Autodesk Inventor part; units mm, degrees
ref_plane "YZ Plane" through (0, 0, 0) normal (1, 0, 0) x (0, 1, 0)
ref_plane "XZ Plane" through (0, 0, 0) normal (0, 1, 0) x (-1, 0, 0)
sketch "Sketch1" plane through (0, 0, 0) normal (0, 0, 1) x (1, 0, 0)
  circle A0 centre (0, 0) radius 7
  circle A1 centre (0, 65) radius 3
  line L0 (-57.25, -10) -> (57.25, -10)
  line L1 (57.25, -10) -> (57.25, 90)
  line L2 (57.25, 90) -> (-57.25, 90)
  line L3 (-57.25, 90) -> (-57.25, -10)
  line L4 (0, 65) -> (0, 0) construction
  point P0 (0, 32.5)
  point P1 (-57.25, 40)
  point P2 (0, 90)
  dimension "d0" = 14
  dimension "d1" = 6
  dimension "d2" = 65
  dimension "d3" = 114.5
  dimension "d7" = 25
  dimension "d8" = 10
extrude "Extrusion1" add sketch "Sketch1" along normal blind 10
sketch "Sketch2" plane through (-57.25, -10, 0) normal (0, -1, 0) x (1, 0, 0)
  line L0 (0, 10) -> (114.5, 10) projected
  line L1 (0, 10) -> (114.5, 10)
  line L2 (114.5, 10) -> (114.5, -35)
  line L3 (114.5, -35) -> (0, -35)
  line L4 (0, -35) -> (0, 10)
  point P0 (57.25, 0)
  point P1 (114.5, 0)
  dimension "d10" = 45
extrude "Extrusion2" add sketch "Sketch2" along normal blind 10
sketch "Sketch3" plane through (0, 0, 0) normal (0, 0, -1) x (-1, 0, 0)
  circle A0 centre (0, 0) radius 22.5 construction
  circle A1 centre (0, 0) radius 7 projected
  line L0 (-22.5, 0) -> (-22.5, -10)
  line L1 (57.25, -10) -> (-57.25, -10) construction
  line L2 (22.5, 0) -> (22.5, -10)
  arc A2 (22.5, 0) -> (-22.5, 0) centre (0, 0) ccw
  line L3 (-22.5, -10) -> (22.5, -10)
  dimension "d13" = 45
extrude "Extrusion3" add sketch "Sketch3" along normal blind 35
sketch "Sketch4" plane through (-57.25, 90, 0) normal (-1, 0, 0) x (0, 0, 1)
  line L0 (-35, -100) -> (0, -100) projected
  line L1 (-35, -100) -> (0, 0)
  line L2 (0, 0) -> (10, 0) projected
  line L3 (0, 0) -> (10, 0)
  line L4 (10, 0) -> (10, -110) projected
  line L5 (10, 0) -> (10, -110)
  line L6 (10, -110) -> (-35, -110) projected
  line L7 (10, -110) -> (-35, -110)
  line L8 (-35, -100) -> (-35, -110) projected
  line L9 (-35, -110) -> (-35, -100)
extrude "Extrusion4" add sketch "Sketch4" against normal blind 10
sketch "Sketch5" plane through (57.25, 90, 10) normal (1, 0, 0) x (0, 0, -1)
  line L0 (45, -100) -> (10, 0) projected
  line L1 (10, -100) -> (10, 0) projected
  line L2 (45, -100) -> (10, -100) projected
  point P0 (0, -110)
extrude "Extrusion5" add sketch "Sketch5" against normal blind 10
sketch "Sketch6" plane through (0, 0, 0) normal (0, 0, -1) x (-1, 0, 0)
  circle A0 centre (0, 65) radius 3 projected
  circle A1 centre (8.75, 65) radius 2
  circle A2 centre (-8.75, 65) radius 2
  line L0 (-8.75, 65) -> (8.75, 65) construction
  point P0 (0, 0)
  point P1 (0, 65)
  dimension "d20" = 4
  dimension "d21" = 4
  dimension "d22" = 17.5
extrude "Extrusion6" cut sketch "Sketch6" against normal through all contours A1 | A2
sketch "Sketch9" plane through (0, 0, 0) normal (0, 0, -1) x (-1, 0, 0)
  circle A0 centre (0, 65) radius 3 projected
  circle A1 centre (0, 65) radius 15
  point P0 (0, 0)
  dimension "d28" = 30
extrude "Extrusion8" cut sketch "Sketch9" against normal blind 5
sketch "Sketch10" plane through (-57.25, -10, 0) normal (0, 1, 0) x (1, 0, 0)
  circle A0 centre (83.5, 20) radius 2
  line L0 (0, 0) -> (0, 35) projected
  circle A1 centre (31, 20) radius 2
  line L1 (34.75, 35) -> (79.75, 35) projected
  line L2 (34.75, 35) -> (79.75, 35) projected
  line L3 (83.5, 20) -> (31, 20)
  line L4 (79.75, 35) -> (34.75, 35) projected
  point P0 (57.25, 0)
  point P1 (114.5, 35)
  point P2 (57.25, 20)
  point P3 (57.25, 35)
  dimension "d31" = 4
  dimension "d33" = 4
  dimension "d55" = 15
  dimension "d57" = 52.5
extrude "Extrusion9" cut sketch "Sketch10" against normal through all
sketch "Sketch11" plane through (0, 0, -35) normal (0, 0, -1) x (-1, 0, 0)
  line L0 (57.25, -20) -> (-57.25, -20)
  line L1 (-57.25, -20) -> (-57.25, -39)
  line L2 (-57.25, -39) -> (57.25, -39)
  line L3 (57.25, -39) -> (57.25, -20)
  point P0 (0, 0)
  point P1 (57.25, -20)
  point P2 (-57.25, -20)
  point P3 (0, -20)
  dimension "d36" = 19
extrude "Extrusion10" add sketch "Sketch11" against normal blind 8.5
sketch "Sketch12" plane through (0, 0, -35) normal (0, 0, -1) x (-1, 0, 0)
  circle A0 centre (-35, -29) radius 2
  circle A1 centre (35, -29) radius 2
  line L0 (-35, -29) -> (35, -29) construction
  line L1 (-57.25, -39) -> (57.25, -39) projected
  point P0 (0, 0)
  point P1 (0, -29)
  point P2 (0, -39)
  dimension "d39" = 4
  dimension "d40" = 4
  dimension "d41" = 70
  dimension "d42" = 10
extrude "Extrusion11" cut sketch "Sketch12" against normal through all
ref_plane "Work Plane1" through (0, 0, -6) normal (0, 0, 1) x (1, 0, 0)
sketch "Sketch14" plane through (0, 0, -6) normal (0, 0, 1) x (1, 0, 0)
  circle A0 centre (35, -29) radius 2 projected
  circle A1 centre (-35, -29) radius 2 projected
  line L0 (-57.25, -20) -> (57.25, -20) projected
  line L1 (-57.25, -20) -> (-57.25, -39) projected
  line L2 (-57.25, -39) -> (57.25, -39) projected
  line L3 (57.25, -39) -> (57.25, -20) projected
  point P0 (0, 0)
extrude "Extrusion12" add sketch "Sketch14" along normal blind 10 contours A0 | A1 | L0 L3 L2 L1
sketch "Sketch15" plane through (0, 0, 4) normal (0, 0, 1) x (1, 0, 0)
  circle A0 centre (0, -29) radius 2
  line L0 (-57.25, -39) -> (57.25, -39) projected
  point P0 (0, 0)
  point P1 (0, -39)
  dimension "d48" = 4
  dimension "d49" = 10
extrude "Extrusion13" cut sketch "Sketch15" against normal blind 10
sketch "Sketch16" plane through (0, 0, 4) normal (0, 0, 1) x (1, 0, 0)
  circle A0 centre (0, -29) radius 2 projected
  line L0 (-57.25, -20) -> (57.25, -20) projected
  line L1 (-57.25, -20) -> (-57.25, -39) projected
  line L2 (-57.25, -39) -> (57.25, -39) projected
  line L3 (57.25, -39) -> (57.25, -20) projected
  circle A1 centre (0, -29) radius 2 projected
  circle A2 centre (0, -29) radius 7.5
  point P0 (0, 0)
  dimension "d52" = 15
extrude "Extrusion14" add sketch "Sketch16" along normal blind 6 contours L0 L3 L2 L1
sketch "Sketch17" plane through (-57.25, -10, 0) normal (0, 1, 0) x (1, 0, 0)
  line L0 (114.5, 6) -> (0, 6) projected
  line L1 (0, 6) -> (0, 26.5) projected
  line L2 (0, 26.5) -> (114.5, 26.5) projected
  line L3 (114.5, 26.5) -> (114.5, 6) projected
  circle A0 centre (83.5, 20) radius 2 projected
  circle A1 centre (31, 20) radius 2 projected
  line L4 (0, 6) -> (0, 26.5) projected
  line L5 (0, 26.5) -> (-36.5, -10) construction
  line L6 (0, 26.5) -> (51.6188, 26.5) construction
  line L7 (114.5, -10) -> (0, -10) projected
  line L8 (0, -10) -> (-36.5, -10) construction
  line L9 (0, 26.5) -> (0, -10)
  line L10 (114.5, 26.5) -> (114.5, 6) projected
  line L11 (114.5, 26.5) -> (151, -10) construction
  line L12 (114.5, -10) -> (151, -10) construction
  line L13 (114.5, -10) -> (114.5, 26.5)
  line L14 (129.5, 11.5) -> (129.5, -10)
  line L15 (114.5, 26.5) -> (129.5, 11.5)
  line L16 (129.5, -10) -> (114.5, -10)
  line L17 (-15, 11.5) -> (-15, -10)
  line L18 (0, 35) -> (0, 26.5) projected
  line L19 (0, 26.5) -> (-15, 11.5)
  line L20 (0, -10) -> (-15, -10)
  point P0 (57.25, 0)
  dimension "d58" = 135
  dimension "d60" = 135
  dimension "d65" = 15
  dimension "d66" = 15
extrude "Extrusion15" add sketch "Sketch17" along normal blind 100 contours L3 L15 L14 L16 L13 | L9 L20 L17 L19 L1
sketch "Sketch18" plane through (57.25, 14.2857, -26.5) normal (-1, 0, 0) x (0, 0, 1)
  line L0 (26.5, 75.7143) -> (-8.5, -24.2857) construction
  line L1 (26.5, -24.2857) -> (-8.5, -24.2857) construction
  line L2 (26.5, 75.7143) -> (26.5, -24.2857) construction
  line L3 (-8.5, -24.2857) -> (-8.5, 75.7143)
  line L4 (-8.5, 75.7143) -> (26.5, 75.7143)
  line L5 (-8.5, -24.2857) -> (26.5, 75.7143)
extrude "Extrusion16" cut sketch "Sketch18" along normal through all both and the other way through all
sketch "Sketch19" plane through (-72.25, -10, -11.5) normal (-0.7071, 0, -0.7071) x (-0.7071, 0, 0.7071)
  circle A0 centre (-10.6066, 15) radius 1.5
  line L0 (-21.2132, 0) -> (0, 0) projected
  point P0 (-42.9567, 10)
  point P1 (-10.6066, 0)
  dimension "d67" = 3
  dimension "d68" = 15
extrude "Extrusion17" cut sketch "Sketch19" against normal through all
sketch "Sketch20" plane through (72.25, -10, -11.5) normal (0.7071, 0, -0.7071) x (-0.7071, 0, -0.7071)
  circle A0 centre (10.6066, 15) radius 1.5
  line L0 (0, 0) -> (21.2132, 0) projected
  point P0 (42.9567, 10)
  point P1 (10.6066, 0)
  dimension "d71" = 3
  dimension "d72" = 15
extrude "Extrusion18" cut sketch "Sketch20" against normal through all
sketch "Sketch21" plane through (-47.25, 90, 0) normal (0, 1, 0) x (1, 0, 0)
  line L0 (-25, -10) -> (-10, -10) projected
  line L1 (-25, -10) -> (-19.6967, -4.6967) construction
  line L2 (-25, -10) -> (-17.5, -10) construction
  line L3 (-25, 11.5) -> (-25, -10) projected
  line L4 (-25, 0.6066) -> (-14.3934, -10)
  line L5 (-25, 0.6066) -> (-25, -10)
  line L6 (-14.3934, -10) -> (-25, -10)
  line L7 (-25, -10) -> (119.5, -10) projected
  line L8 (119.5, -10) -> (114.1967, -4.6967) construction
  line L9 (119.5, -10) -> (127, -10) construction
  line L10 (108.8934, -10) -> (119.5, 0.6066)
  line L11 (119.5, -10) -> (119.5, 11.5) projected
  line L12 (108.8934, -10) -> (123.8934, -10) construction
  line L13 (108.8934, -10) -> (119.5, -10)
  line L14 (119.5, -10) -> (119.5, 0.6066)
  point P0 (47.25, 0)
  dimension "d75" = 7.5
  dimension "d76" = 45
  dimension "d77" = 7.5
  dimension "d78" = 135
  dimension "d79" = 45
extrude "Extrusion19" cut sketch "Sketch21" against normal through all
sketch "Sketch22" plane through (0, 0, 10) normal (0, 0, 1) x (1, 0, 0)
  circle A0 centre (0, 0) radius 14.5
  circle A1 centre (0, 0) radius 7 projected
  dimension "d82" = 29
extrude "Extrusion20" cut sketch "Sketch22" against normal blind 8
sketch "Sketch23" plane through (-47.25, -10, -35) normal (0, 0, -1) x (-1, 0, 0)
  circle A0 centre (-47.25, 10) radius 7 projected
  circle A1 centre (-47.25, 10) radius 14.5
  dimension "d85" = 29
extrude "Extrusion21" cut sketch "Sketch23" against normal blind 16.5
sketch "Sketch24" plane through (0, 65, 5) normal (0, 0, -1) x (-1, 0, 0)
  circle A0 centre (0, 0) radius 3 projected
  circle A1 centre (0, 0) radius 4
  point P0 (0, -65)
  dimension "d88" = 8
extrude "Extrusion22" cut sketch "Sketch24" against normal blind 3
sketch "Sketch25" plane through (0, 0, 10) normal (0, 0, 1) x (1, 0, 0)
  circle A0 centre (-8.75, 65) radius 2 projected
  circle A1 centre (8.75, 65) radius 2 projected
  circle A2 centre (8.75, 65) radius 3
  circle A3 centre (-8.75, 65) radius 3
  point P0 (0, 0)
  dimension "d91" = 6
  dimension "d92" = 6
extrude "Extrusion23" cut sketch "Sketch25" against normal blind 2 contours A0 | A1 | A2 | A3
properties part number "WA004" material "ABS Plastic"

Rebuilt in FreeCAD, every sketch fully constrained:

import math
import FreeCAD as App
import Part
import Sketcher
Q = App.Units.Quantity


def add_polygon(sketch, points):
    """Adds a closed chain of lines whose ends are joined by coincident constraints."""
    first, n = sketch.GeometryCount, len(points)
    for a, b in zip(points, points[1:] + points[:1]):
        sketch.addGeometry(Part.LineSegment(App.Vector(*a, 0), App.Vector(*b, 0)), False)
    for i in range(n):
        sketch.addConstraint(Sketcher.Constraint("Coincident", first + i, 2, first + (i + 1) % n, 1))

doc = App.newDocument("Part")
body = doc.addObject("PartDesign::Body", "Body")

sketch1 = doc.addObject("Sketcher::SketchObject", "Sketch")
body.addObject(sketch1)
sketch1.AttachmentSupport = (doc.XY_Plane, [""])
sketch1.MapMode = "FlatFace"
add_polygon(sketch1, [(-57.25, 90), (-57.25, -10), (57.25, -10), (57.25, 90)])
sketch1.addGeometry(Part.Circle(App.Vector(0, 0, 0), App.Vector(0, 0, 1), 7), False)
sketch1.addGeometry(Part.Circle(App.Vector(0, 65, 0), App.Vector(0, 0, 1), 3), False)
sketch1.addConstraint([
    Sketcher.Constraint("Vertical", 0),
    Sketcher.Constraint("Horizontal", 1),
    Sketcher.Constraint("Vertical", 2),
    Sketcher.Constraint("Horizontal", 3),
    Sketcher.Constraint("Coincident", 4, 3, -1, 1),
    Sketcher.Constraint("PointOnObject", 5, 3, -2),
    Sketcher.Constraint("Diameter", 4, Q("14 mm")),
    Sketcher.Constraint("Diameter", 5, Q("6 mm")),
    Sketcher.Constraint("DistanceX", 1, 1, 1, 2, Q("114.5 mm")),
    Sketcher.Constraint("DistanceY", -1, 1, 5, 3, Q("65 mm")),
    Sketcher.Constraint("DistanceY", 0, 2, -1, 1, Q("10 mm")),
    Sketcher.Constraint("DistanceY", 5, 3, 2, 2, Q("25 mm")),
    Sketcher.Constraint("DistanceX", 0, 2, -1, 1, Q("57.25 mm")),
])
pad1 = doc.addObject("PartDesign::Pad", "Pad")
body.addObject(pad1)
pad1.Profile = sketch1
pad1.Length = 10

sketch2 = doc.addObject("Sketcher::SketchObject", "Sketch001")
body.addObject(sketch2)
sketch2.AttachmentSupport = (doc.XZ_Plane, [""])
sketch2.MapMode = "FlatFace"
sketch2.AttachmentOffset = App.Placement(App.Vector(0, 0, 10), App.Rotation())
add_polygon(sketch2, [(57.25, 10), (-57.25, 10), (-57.25, -35), (57.25, -35)])
sketch2.addConstraint([
    Sketcher.Constraint("Horizontal", 0),
    Sketcher.Constraint("Vertical", 1),
    Sketcher.Constraint("Horizontal", 2),
    Sketcher.Constraint("Vertical", 3),
    Sketcher.Constraint("DistanceY", 1, 2, 1, 1, Q("45 mm")),
    Sketcher.Constraint("DistanceX", 0, 2, 0, 1, Q("114.5 mm")),
    Sketcher.Constraint("DistanceY", -1, 1, 0, 2, Q("10 mm")),
    Sketcher.Constraint("DistanceX", 0, 2, -1, 1, Q("57.25 mm")),
])
pad2 = doc.addObject("PartDesign::Pad", "Pad001")
body.addObject(pad2)
pad2.Profile = sketch2
pad2.Length = 10

sketch3 = doc.addObject("Sketcher::SketchObject", "Sketch002")
body.addObject(sketch3)
sketch3.AttachmentSupport = (doc.XY_Plane, [""])
sketch3.MapMode = "FlatFace"
sketch3.addGeometry([
    Part.ArcOfCircle(Part.Circle(App.Vector(0, 0, 0), App.Vector(0, 0, 1), 22.5), math.radians(0), math.radians(180)),
    Part.LineSegment(App.Vector(22.5, 0, 0), App.Vector(22.5, -10, 0)),
    Part.LineSegment(App.Vector(22.5, -10, 0), App.Vector(-22.5, -10, 0)),
    Part.LineSegment(App.Vector(-22.5, -10, 0), App.Vector(-22.5, 0, 0)),
    Part.Circle(App.Vector(0, 0, 0), App.Vector(0, 0, 1), 7),
], False)
sketch3.addConstraint([
    Sketcher.Constraint("Tangent", 0, 1, 1, 1),
    Sketcher.Constraint("Coincident", 1, 2, 2, 1),
    Sketcher.Constraint("Coincident", 2, 2, 3, 1),
    Sketcher.Constraint("Tangent", 3, 2, 0, 2),
    Sketcher.Constraint("Vertical", 1),
    Sketcher.Constraint("Horizontal", 2),
    Sketcher.Constraint("Vertical", 3),
    Sketcher.Constraint("Coincident", 0, 3, -1, 1),
    Sketcher.Constraint("Coincident", 4, 3, -1, 1),
    Sketcher.Constraint("Radius", 0, Q("22.5 mm")),
    Sketcher.Constraint("Diameter", 4, Q("14 mm")),
    Sketcher.Constraint("DistanceY", 1, 2, 1, 1, Q("10 mm")),
])
pad3 = doc.addObject("PartDesign::Pad", "Pad002")
body.addObject(pad3)
pad3.Profile = sketch3
pad3.Length = 35
pad3.Reversed = True

sketch4 = doc.addObject("Sketcher::SketchObject", "Sketch003")
body.addObject(sketch4)
sketch4.AttachmentSupport = (doc.YZ_Plane, [""])
sketch4.MapMode = "FlatFace"
sketch4.AttachmentOffset = App.Placement(App.Vector(0, 0, -57.25), App.Rotation())
add_polygon(sketch4, [(90, 0), (-10, -35), (-20, -35), (-20, 10), (90, 10)])
sketch4.addConstraint([
    Sketcher.Constraint("Horizontal", 1),
    Sketcher.Constraint("Vertical", 2),
    Sketcher.Constraint("Horizontal", 3),
    Sketcher.Constraint("Vertical", 4),
    Sketcher.Constraint("PointOnObject", 4, 2, -1),
    Sketcher.Constraint("Equal", 1, 4),
    Sketcher.Constraint("DistanceX", 1, 2, 1, 1, Q("10 mm")),
    Sketcher.Constraint("DistanceX", 3, 1, 3, 2, Q("110 mm")),
    Sketcher.Constraint("DistanceY", 2, 1, 2, 2, Q("45 mm")),
    Sketcher.Constraint("DistanceX", 0, 2, -1, 1, Q("10 mm")),
])
pad4 = doc.addObject("PartDesign::Pad", "Pad003")
body.addObject(pad4)
pad4.Profile = sketch4
pad4.Length = 10

sketch5 = doc.addObject("Sketcher::SketchObject", "Sketch004")
body.addObject(sketch5)
sketch5.AttachmentSupport = (doc.YZ_Plane, [""])
sketch5.MapMode = "FlatFace"
sketch5.AttachmentOffset = App.Placement(App.Vector(0, 0, 57.25), App.Rotation())
add_polygon(sketch5, [(-10, 0), (-10, -35), (90, 0)])
sketch5.addConstraint([
    Sketcher.Constraint("Vertical", 0),
    Sketcher.Constraint("Horizontal", 2),
    Sketcher.Constraint("PointOnObject", 1, 2, -1),
    Sketcher.Constraint("DistanceX", 2, 2, 2, 1, Q("100 mm")),
    Sketcher.Constraint("DistanceY", 0, 2, 0, 1, Q("35 mm")),
    Sketcher.Constraint("DistanceX", 0, 2, -1, 1, Q("10 mm")),
])
pad5 = doc.addObject("PartDesign::Pad", "Pad004")
body.addObject(pad5)
pad5.Profile = sketch5
pad5.Length = 10
pad5.Reversed = True

sketch6 = doc.addObject("Sketcher::SketchObject", "Sketch005")
body.addObject(sketch6)
sketch6.AttachmentSupport = (doc.XY_Plane, [""])
sketch6.MapMode = "FlatFace"
sketch6.addGeometry([
    Part.Circle(App.Vector(-8.75, 65, 0), App.Vector(0, 0, 1), 2),
    Part.Circle(App.Vector(8.75, 65, 0), App.Vector(0, 0, 1), 2),
], False)
sketch6.addConstraint([
    Sketcher.Constraint("Equal", 0, 1),
    Sketcher.Constraint("Symmetric", 0, 3, 1, 3, -2),
    Sketcher.Constraint("Diameter", 0, Q("4 mm")),
    Sketcher.Constraint("DistanceX", 0, 3, 1, 3, Q("17.5 mm")),
    Sketcher.Constraint("DistanceY", -1, 1, 0, 3, Q("65 mm")),
])
pocket1 = doc.addObject("PartDesign::Pocket", "Pocket")
body.addObject(pocket1)
pocket1.Profile = sketch6
pocket1.Type = "ThroughAll"
pocket1.Reversed = True

sketch7 = doc.addObject("Sketcher::SketchObject", "Sketch006")
body.addObject(sketch7)
sketch7.AttachmentSupport = (doc.XY_Plane, [""])
sketch7.MapMode = "FlatFace"
sketch7.addGeometry([
    Part.Circle(App.Vector(0, 65, 0), App.Vector(0, 0, 1), 15),
    Part.Circle(App.Vector(0, 65, 0), App.Vector(0, 0, 1), 3),
], False)
sketch7.addConstraint([
    Sketcher.Constraint("Coincident", 1, 3, 0, 3),
    Sketcher.Constraint("PointOnObject", 0, 3, -2),
    Sketcher.Constraint("Diameter", 0, Q("30 mm")),
    Sketcher.Constraint("Diameter", 1, Q("6 mm")),
    Sketcher.Constraint("DistanceY", -1, 1, 0, 3, Q("65 mm")),
])
pocket2 = doc.addObject("PartDesign::Pocket", "Pocket001")
body.addObject(pocket2)
pocket2.Profile = sketch7
pocket2.Length = 5
pocket2.Reversed = True

sketch8 = doc.addObject("Sketcher::SketchObject", "Sketch007")
body.addObject(sketch8)
sketch8.AttachmentSupport = (doc.XZ_Plane, [""])
sketch8.MapMode = "FlatFace"
sketch8.AttachmentOffset = App.Placement(App.Vector(0, 0, 10), App.Rotation())
sketch8.addGeometry([
    Part.Circle(App.Vector(26.25, -20, 0), App.Vector(0, 0, 1), 2),
    Part.Circle(App.Vector(-26.25, -20, 0), App.Vector(0, 0, 1), 2),
], False)
sketch8.addConstraint([
    Sketcher.Constraint("Equal", 0, 1),
    Sketcher.Constraint("Symmetric", 0, 3, 1, 3, -2),
    Sketcher.Constraint("Diameter", 0, Q("4 mm")),
    Sketcher.Constraint("DistanceX", 1, 3, 0, 3, Q("52.5 mm")),
    Sketcher.Constraint("DistanceY", 0, 3, -1, 1, Q("20 mm")),
])
pocket3 = doc.addObject("PartDesign::Pocket", "Pocket002")
body.addObject(pocket3)
pocket3.Profile = sketch8
pocket3.Type = "ThroughAll"
pocket3.Reversed = True

sketch9 = doc.addObject("Sketcher::SketchObject", "Sketch008")
body.addObject(sketch9)
sketch9.AttachmentSupport = (doc.XY_Plane, [""])
sketch9.MapMode = "FlatFace"
sketch9.AttachmentOffset = App.Placement(App.Vector(0, 0, -35), App.Rotation())
add_polygon(sketch9, [(-57.25, -39), (-57.25, -20), (57.25, -20), (57.25, -39)])
sketch9.addConstraint([
    Sketcher.Constraint("Vertical", 0),
    Sketcher.Constraint("Horizontal", 1),
    Sketcher.Constraint("Vertical", 2),
    Sketcher.Constraint("Horizontal", 3),
    Sketcher.Constraint("DistanceY", 0, 1, 0, 2, Q("19 mm")),
    Sketcher.Constraint("DistanceX", 1, 1, 1, 2, Q("114.5 mm")),
    Sketcher.Constraint("DistanceY", 0, 2, -1, 1, Q("20 mm")),
    Sketcher.Constraint("DistanceX", 0, 2, -1, 1, Q("57.25 mm")),
])
pad6 = doc.addObject("PartDesign::Pad", "Pad005")
body.addObject(pad6)
pad6.Profile = sketch9
pad6.Length = 8.5

sketch10 = doc.addObject("Sketcher::SketchObject", "Sketch009")
body.addObject(sketch10)
sketch10.AttachmentSupport = (doc.XY_Plane, [""])
sketch10.MapMode = "FlatFace"
sketch10.AttachmentOffset = App.Placement(App.Vector(0, 0, -35), App.Rotation())
sketch10.addGeometry([
    Part.Circle(App.Vector(35, -29, 0), App.Vector(0, 0, 1), 2),
    Part.Circle(App.Vector(-35, -29, 0), App.Vector(0, 0, 1), 2),
], False)
sketch10.addConstraint([
    Sketcher.Constraint("Equal", 0, 1),
    Sketcher.Constraint("Symmetric", 0, 3, 1, 3, -2),
    Sketcher.Constraint("Diameter", 0, Q("4 mm")),
    Sketcher.Constraint("DistanceX", 1, 3, 0, 3, Q("70 mm")),
    Sketcher.Constraint("DistanceY", 0, 3, -1, 1, Q("29 mm")),
])
pocket4 = doc.addObject("PartDesign::Pocket", "Pocket003")
body.addObject(pocket4)
pocket4.Profile = sketch10
pocket4.Type = "ThroughAll"
pocket4.Reversed = True

sketch11 = doc.addObject("Sketcher::SketchObject", "Sketch010")
body.addObject(sketch11)
sketch11.AttachmentSupport = (doc.XY_Plane, [""])
sketch11.MapMode = "FlatFace"
sketch11.AttachmentOffset = App.Placement(App.Vector(0, 0, -6), App.Rotation())
add_polygon(sketch11, [(57.25, -20), (-57.25, -20), (-57.25, -39), (57.25, -39)])
sketch11.addConstraint([
    Sketcher.Constraint("Horizontal", 0),
    Sketcher.Constraint("Vertical", 1),
    Sketcher.Constraint("Horizontal", 2),
    Sketcher.Constraint("Vertical", 3),
    Sketcher.Constraint("DistanceY", 1, 2, 1, 1, Q("19 mm")),
    Sketcher.Constraint("DistanceX", 0, 2, 0, 1, Q("114.5 mm")),
    Sketcher.Constraint("DistanceY", 0, 2, -1, 1, Q("20 mm")),
    Sketcher.Constraint("DistanceX", 0, 2, -1, 1, Q("57.25 mm")),
])
pad7 = doc.addObject("PartDesign::Pad", "Pad006")
body.addObject(pad7)
pad7.Profile = sketch11
pad7.Length = 10

sketch12 = doc.addObject("Sketcher::SketchObject", "Sketch011")
body.addObject(sketch12)
sketch12.AttachmentSupport = (doc.XY_Plane, [""])
sketch12.MapMode = "FlatFace"
sketch12.AttachmentOffset = App.Placement(App.Vector(0, 0, 4), App.Rotation())
sketch12.addGeometry(Part.Circle(App.Vector(0, -29, 0), App.Vector(0, 0, 1), 2), False)
sketch12.addConstraint([
    Sketcher.Constraint("PointOnObject", 0, 3, -2),
    Sketcher.Constraint("Diameter", 0, Q("4 mm")),
    Sketcher.Constraint("DistanceY", 0, 3, -1, 1, Q("29 mm")),
])
pocket5 = doc.addObject("PartDesign::Pocket", "Pocket004")
body.addObject(pocket5)
pocket5.Profile = sketch12
pocket5.Length = 10

sketch13 = doc.addObject("Sketcher::SketchObject", "Sketch012")
body.addObject(sketch13)
sketch13.AttachmentSupport = (doc.XY_Plane, [""])
sketch13.MapMode = "FlatFace"
sketch13.AttachmentOffset = App.Placement(App.Vector(0, 0, 4), App.Rotation())
add_polygon(sketch13, [(57.25, -20), (-57.25, -20), (-57.25, -39), (57.25, -39)])
sketch13.addGeometry(Part.Circle(App.Vector(0, -29, 0), App.Vector(0, 0, 1), 7.5), False)
sketch13.addConstraint([
    Sketcher.Constraint("Horizontal", 0),
    Sketcher.Constraint("Vertical", 1),
    Sketcher.Constraint("Horizontal", 2),
    Sketcher.Constraint("Vertical", 3),
    Sketcher.Constraint("PointOnObject", 4, 3, -2),
    Sketcher.Constraint("Diameter", 4, Q("15 mm")),
    Sketcher.Constraint("DistanceY", 1, 2, 1, 1, Q("19 mm")),
    Sketcher.Constraint("DistanceX", 0, 2, 0, 1, Q("114.5 mm")),
    Sketcher.Constraint("DistanceY", 4, 3, -1, 1, Q("29 mm")),
    Sketcher.Constraint("DistanceY", 0, 2, -1, 1, Q("20 mm")),
    Sketcher.Constraint("DistanceX", 0, 2, -1, 1, Q("57.25 mm")),
])
pad8 = doc.addObject("PartDesign::Pad", "Pad007")
body.addObject(pad8)
pad8.Profile = sketch13
pad8.Length = 6

sketch14 = doc.addObject("Sketcher::SketchObject", "Sketch013")
body.addObject(sketch14)
sketch14.AttachmentSupport = (doc.XZ_Plane, [""])
sketch14.MapMode = "FlatFace"
sketch14.AttachmentOffset = App.Placement(App.Vector(0, 0, 10), App.Rotation())
add_polygon(sketch14, [(57.25, -26.5), (57.25, 10), (72.25, 10), (72.25, -11.5)])
add_polygon(sketch14, [(-57.25, 10), (-57.25, -26.5), (-72.25, -11.5), (-72.25, 10)])
sketch14.addConstraint([
    Sketcher.Constraint("Vertical", 0),
    Sketcher.Constraint("Horizontal", 1),
    Sketcher.Constraint("Vertical", 2),
    Sketcher.Constraint("Vertical", 4),
    Sketcher.Constraint("Vertical", 6),
    Sketcher.Constraint("Horizontal", 7),
    Sketcher.Constraint("Symmetric", 3, 2, 4, 2, -2),
    Sketcher.Constraint("Symmetric", 2, 2, 5, 2, -2),
    Sketcher.Constraint("Perpendicular", 3, 5),
    Sketcher.Constraint("Horizontal", 1, 2, 6, 2),
    Sketcher.Constraint("DistanceX", 1, 1, 1, 2, Q("15 mm")),
    Sketcher.Constraint("DistanceY", 0, 1, 0, 2, Q("36.5 mm")),
    Sketcher.Constraint("DistanceY", -1, 1, 0, 2, Q("10 mm")),
    Sketcher.Constraint("DistanceX", 4, 2, 3, 2, Q("114.5 mm")),
])
pad9 = doc.addObject("PartDesign::Pad", "Pad008")
body.addObject(pad9)
pad9.Profile = sketch14
pad9.Length = 100
pad9.Reversed = True

sketch15 = doc.addObject("Sketcher::SketchObject", "Sketch014")
body.addObject(sketch15)
sketch15.AttachmentSupport = (doc.YZ_Plane, [""])
sketch15.MapMode = "FlatFace"
sketch15.AttachmentOffset = App.Placement(App.Vector(0, 0, 57.25), App.Rotation())
add_polygon(sketch15, [(90, -35), (-10, -35), (90, 0)])
sketch15.addConstraint([
    Sketcher.Constraint("Horizontal", 0),
    Sketcher.Constraint("Vertical", 2),
    Sketcher.Constraint("PointOnObject", 1, 2, -1),
    Sketcher.Constraint("DistanceX", 0, 2, 0, 1, Q("100 mm")),
    Sketcher.Constraint("DistanceY", 2, 2, 2, 1, Q("35 mm")),
    Sketcher.Constraint("DistanceX", 0, 2, -1, 1, Q("10 mm")),
])
pocket6 = doc.addObject("PartDesign::Pocket", "Pocket005")
body.addObject(pocket6)
pocket6.Profile = sketch15
pocket6.Type = "ThroughAll"
pocket6.Midplane = True

sketch16 = doc.addObject("Sketcher::SketchObject", "Sketch015")
body.addObject(sketch16)
sketch16.Placement = App.Placement(App.Vector(-72.25, -10, -11.5), App.Rotation(App.Vector(-0.707106781, 0, 0.707106781), App.Vector(0, 0.999999999, 0), App.Vector(-0.707106781, 0, -0.707106781), "ZXY"))
sketch16.addGeometry(Part.Circle(App.Vector(-10.6066, 15, 0), App.Vector(0, 0, 1), 1.5), False)
sketch16.addConstraint([
    Sketcher.Constraint("Diameter", 0, Q("3 mm")),
    Sketcher.Constraint("DistanceY", -1, 1, 0, 3, Q("15 mm")),
    Sketcher.Constraint("DistanceX", 0, 3, -1, 1, Q("10.6066 mm")),
])
pocket7 = doc.addObject("PartDesign::Pocket", "Pocket006")
body.addObject(pocket7)
pocket7.Profile = sketch16
pocket7.Type = "ThroughAll"

sketch17 = doc.addObject("Sketcher::SketchObject", "Sketch016")
body.addObject(sketch17)
sketch17.Placement = App.Placement(App.Vector(72.25, -10, -11.5), App.Rotation(App.Vector(-0.707106781, 0, -0.707106781), App.Vector(0, 0.999999999, 0), App.Vector(0.707106781, 0, -0.707106781), "ZXY"))
sketch17.addGeometry(Part.Circle(App.Vector(10.6066, 15, 0), App.Vector(0, 0, 1), 1.5), False)
sketch17.addConstraint([
    Sketcher.Constraint("Diameter", 0, Q("3 mm")),
    Sketcher.Constraint("DistanceY", -1, 1, 0, 3, Q("15 mm")),
    Sketcher.Constraint("DistanceX", -1, 1, 0, 3, Q("10.6066 mm")),
])
pocket8 = doc.addObject("PartDesign::Pocket", "Pocket007")
body.addObject(pocket8)
pocket8.Profile = sketch17
pocket8.Type = "ThroughAll"

sketch18 = doc.addObject("Sketcher::SketchObject", "Sketch017")
body.addObject(sketch18)
sketch18.AttachmentSupport = (doc.XZ_Plane, [""])
sketch18.MapMode = "FlatFace"
sketch18.AttachmentOffset = App.Placement(App.Vector(0, 0, -90), App.Rotation())
add_polygon(sketch18, [(-72.25, -0.6066), (-72.25, 10), (-61.6434, 10)])
add_polygon(sketch18, [(72.25, -0.6066), (61.6434, 10), (72.25, 10)])
sketch18.addConstraint([
    Sketcher.Constraint("Vertical", 0),
    Sketcher.Constraint("Horizontal", 1),
    Sketcher.Constraint("Horizontal", 4),
    Sketcher.Constraint("Vertical", 5),
    Sketcher.Constraint("Symmetric", 1, 2, 3, 2, -2),
    Sketcher.Constraint("Symmetric", 2, 2, 5, 2, -2),
    Sketcher.Constraint("Perpendicular", 2, 3),
    Sketcher.Constraint("Distance", 2, Q("15 mm")),
    Sketcher.Constraint("DistanceY", -1, 1, 0, 2, Q("10 mm")),
    Sketcher.Constraint("DistanceX", 0, 2, 4, 2, Q("144.5 mm")),
])
pocket9 = doc.addObject("PartDesign::Pocket", "Pocket008")
body.addObject(pocket9)
pocket9.Profile = sketch18
pocket9.Type = "ThroughAll"
pocket9.Reversed = True

sketch19 = doc.addObject("Sketcher::SketchObject", "Sketch018")
body.addObject(sketch19)
sketch19.AttachmentSupport = (doc.XY_Plane, [""])
sketch19.MapMode = "FlatFace"
sketch19.AttachmentOffset = App.Placement(App.Vector(0, 0, 10), App.Rotation())
sketch19.addGeometry([
    Part.Circle(App.Vector(0, 0, 0), App.Vector(0, 0, 1), 14.5),
    Part.Circle(App.Vector(0, 0, 0), App.Vector(0, 0, 1), 7),
], False)
sketch19.addConstraint([
    Sketcher.Constraint("Coincident", 0, 3, -1, 1),
    Sketcher.Constraint("Coincident", 1, 3, -1, 1),
    Sketcher.Constraint("Diameter", 0, Q("29 mm")),
    Sketcher.Constraint("Diameter", 1, Q("14 mm")),
])
pocket10 = doc.addObject("PartDesign::Pocket", "Pocket009")
body.addObject(pocket10)
pocket10.Profile = sketch19
pocket10.Length = 8

sketch20 = doc.addObject("Sketcher::SketchObject", "Sketch019")
body.addObject(sketch20)
sketch20.AttachmentSupport = (doc.XY_Plane, [""])
sketch20.MapMode = "FlatFace"
sketch20.AttachmentOffset = App.Placement(App.Vector(0, 0, -35), App.Rotation())
sketch20.addGeometry([
    Part.Circle(App.Vector(0, 0, 0), App.Vector(0, 0, 1), 14.5),
    Part.Circle(App.Vector(0, 0, 0), App.Vector(0, 0, 1), 7),
], False)
sketch20.addConstraint([
    Sketcher.Constraint("Coincident", 0, 3, -1, 1),
    Sketcher.Constraint("Coincident", 1, 3, -1, 1),
    Sketcher.Constraint("Diameter", 0, Q("29 mm")),
    Sketcher.Constraint("Diameter", 1, Q("14 mm")),
])
pocket11 = doc.addObject("PartDesign::Pocket", "Pocket010")
body.addObject(pocket11)
pocket11.Profile = sketch20
pocket11.Length = 16.5
pocket11.Reversed = True

sketch21 = doc.addObject("Sketcher::SketchObject", "Sketch020")
body.addObject(sketch21)
sketch21.AttachmentSupport = (doc.XY_Plane, [""])
sketch21.MapMode = "FlatFace"
sketch21.AttachmentOffset = App.Placement(App.Vector(0, 0, 5), App.Rotation())
sketch21.addGeometry([
    Part.Circle(App.Vector(0, 65, 0), App.Vector(0, 0, 1), 4),
    Part.Circle(App.Vector(0, 65, 0), App.Vector(0, 0, 1), 3),
], False)
sketch21.addConstraint([
    Sketcher.Constraint("Coincident", 1, 3, 0, 3),
    Sketcher.Constraint("PointOnObject", 0, 3, -2),
    Sketcher.Constraint("Diameter", 0, Q("8 mm")),
    Sketcher.Constraint("Diameter", 1, Q("6 mm")),
    Sketcher.Constraint("DistanceY", -1, 1, 0, 3, Q("65 mm")),
])
pocket12 = doc.addObject("PartDesign::Pocket", "Pocket011")
body.addObject(pocket12)
pocket12.Profile = sketch21
pocket12.Length = 3
pocket12.Reversed = True

sketch22 = doc.addObject("Sketcher::SketchObject", "Sketch021")
body.addObject(sketch22)
sketch22.AttachmentSupport = (doc.XY_Plane, [""])
sketch22.MapMode = "FlatFace"
sketch22.AttachmentOffset = App.Placement(App.Vector(0, 0, 10), App.Rotation())
sketch22.addGeometry([
    Part.Circle(App.Vector(-8.75, 65, 0), App.Vector(0, 0, 1), 3),
    Part.Circle(App.Vector(8.75, 65, 0), App.Vector(0, 0, 1), 3),
], False)
sketch22.addConstraint([
    Sketcher.Constraint("Equal", 0, 1),
    Sketcher.Constraint("Symmetric", 0, 3, 1, 3, -2),
    Sketcher.Constraint("Diameter", 0, Q("6 mm")),
    Sketcher.Constraint("DistanceY", -1, 1, 0, 3, Q("65 mm")),
    Sketcher.Constraint("DistanceX", 0, 3, 1, 3, Q("17.5 mm")),
])
pocket13 = doc.addObject("PartDesign::Pocket", "Pocket012")
body.addObject(pocket13)
pocket13.Profile = sketch22
pocket13.Length = 2

doc.recompute()
